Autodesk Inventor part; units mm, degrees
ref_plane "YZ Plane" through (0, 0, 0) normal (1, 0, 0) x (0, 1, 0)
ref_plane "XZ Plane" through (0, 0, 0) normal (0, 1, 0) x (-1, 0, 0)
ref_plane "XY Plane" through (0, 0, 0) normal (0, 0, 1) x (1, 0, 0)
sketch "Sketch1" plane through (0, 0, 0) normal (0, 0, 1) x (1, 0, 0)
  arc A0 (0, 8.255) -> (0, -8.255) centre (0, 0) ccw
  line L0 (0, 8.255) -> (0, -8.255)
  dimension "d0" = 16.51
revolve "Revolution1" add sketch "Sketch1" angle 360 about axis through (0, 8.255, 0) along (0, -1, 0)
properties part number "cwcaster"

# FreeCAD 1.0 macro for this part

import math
import FreeCAD as App
import Part
import Sketcher

V = App.Vector
Q = App.Units.Quantity

doc = App.newDocument("Part")
body = doc.addObject("PartDesign::Body", "Body")

sketch1 = doc.addObject("Sketcher::SketchObject", "Sketch")
body.addObject(sketch1)
sketch1.AttachmentSupport = (doc.XY_Plane, [""])
sketch1.MapMode = "FlatFace"
sketch1.addGeometry([
    Part.LineSegment(V(0, -8, 0), V(0, 8, 0)),
    Part.ArcOfCircle(Part.Circle(V(0, 0, 0), V(0, 0, 1), 8), math.radians(90), math.radians(270)),
], False)
sketch1.addConstraint([
    Sketcher.Constraint("Coincident", 0, 1, 1, 2),
    Sketcher.Constraint("Coincident", 1, 1, 0, 2),
    Sketcher.Constraint("Vertical", 0),
    Sketcher.Constraint("Coincident", 1, 3, -1, 1),
    Sketcher.Constraint("PointOnObject", 0, 1, -2),
    Sketcher.Constraint("Radius", 1, Q("0.325 in")),
])
revolution = doc.addObject("PartDesign::Revolution", "Revolution")
body.addObject(revolution)
revolution.Profile = sketch1
revolution.ReferenceAxis = (sketch1, ["V_Axis"])
revolution.Angle = 360

doc.recompute()
